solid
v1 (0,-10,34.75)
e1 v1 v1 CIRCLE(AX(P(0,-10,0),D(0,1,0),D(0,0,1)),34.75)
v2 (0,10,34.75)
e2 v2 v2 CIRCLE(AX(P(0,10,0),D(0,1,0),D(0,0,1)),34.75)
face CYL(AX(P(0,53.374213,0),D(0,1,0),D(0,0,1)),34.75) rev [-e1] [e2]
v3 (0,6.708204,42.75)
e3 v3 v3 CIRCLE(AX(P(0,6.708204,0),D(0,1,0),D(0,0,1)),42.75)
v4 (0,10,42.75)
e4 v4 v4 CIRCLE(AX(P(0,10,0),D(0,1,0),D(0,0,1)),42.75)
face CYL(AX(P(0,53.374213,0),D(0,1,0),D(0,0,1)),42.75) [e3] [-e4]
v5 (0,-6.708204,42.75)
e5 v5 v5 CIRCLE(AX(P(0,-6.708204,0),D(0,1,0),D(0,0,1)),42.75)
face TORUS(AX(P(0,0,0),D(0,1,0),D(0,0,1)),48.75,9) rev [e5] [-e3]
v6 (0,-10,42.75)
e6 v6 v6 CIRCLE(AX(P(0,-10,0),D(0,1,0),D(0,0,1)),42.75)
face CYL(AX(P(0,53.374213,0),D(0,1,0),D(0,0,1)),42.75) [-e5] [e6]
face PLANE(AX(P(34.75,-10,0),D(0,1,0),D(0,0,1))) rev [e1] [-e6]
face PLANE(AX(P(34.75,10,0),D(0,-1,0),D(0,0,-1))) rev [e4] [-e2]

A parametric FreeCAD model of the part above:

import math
import FreeCAD as App
import Part
import Sketcher
from FreeCAD import Vector
Q = App.Units.Quantity

doc = App.newDocument("Part")
body = doc.addObject("PartDesign::Body", "Body")

# Sketch on XY plane
sketch1 = doc.addObject("Sketcher::SketchObject", "Sketch")
body.addObject(sketch1)
sketch1.AttachmentSupport = (doc.XY_Plane, [""])
sketch1.MapMode = "FlatFace"
sketch1.addGeometry(Part.LineSegment(Vector(34.8, 10, 0), Vector(34.8, -10, 0)), False)
sketch1.addGeometry(Part.LineSegment(Vector(34.8, -10, 0), Vector(42.8, -10, 0)), False)
sketch1.addGeometry(Part.LineSegment(Vector(42.8, -10, 0), Vector(42.8, -6.7, 0)), False)
sketch1.addGeometry(Part.ArcOfCircle(Part.Circle(Vector(48.7, 0, 0), Vector(0, 0, 1), 9), math.radians(132), math.radians(228)), False)
sketch1.addGeometry(Part.LineSegment(Vector(42.8, 6.7, 0), Vector(42.8, 10, 0)), False)
sketch1.addGeometry(Part.LineSegment(Vector(42.8, 10, 0), Vector(34.8, 10, 0)), False)
sketch1.addConstraint(Sketcher.Constraint("Coincident", 0, 2, 1, 1))
sketch1.addConstraint(Sketcher.Constraint("Coincident", 1, 2, 2, 1))
sketch1.addConstraint(Sketcher.Constraint("Coincident", 2, 2, 3, 2))
sketch1.addConstraint(Sketcher.Constraint("Coincident", 3, 1, 4, 1))
sketch1.addConstraint(Sketcher.Constraint("Coincident", 4, 2, 5, 1))
sketch1.addConstraint(Sketcher.Constraint("Coincident", 5, 2, 0, 1))
sketch1.addConstraint(Sketcher.Constraint("Vertical", 0))
sketch1.addConstraint(Sketcher.Constraint("Horizontal", 1))
sketch1.addConstraint(Sketcher.Constraint("Vertical", 2))
sketch1.addConstraint(Sketcher.Constraint("Vertical", 4))
sketch1.addConstraint(Sketcher.Constraint("Horizontal", 5))
sketch1.addConstraint(Sketcher.Constraint("Symmetric", 2, 2, 3, 1, -1))
sketch1.addConstraint(Sketcher.Constraint("Equal", 2, 4))
sketch1.addConstraint(Sketcher.Constraint("Radius", 3, Q("9 mm")))
sketch1.addConstraint(Sketcher.Constraint("DistanceX", 1, 1, 1, 2, Q("8 mm")))
sketch1.addConstraint(Sketcher.Constraint("DistanceY", 0, 2, 0, 1, Q("20 mm")))
sketch1.addConstraint(Sketcher.Constraint("DistanceX", 0, 2, 3, 3, Q("14 mm")))
sketch1.addConstraint(Sketcher.Constraint("DistanceX", -1, 1, 3, 3, Q("48.75 mm")))
revolution = doc.addObject("PartDesign::Revolution", "Revolution")
body.addObject(revolution)
revolution.Profile = sketch1
revolution.ReferenceAxis = (sketch1, ["V_Axis"])
revolution.Angle = 360

doc.recompute()
